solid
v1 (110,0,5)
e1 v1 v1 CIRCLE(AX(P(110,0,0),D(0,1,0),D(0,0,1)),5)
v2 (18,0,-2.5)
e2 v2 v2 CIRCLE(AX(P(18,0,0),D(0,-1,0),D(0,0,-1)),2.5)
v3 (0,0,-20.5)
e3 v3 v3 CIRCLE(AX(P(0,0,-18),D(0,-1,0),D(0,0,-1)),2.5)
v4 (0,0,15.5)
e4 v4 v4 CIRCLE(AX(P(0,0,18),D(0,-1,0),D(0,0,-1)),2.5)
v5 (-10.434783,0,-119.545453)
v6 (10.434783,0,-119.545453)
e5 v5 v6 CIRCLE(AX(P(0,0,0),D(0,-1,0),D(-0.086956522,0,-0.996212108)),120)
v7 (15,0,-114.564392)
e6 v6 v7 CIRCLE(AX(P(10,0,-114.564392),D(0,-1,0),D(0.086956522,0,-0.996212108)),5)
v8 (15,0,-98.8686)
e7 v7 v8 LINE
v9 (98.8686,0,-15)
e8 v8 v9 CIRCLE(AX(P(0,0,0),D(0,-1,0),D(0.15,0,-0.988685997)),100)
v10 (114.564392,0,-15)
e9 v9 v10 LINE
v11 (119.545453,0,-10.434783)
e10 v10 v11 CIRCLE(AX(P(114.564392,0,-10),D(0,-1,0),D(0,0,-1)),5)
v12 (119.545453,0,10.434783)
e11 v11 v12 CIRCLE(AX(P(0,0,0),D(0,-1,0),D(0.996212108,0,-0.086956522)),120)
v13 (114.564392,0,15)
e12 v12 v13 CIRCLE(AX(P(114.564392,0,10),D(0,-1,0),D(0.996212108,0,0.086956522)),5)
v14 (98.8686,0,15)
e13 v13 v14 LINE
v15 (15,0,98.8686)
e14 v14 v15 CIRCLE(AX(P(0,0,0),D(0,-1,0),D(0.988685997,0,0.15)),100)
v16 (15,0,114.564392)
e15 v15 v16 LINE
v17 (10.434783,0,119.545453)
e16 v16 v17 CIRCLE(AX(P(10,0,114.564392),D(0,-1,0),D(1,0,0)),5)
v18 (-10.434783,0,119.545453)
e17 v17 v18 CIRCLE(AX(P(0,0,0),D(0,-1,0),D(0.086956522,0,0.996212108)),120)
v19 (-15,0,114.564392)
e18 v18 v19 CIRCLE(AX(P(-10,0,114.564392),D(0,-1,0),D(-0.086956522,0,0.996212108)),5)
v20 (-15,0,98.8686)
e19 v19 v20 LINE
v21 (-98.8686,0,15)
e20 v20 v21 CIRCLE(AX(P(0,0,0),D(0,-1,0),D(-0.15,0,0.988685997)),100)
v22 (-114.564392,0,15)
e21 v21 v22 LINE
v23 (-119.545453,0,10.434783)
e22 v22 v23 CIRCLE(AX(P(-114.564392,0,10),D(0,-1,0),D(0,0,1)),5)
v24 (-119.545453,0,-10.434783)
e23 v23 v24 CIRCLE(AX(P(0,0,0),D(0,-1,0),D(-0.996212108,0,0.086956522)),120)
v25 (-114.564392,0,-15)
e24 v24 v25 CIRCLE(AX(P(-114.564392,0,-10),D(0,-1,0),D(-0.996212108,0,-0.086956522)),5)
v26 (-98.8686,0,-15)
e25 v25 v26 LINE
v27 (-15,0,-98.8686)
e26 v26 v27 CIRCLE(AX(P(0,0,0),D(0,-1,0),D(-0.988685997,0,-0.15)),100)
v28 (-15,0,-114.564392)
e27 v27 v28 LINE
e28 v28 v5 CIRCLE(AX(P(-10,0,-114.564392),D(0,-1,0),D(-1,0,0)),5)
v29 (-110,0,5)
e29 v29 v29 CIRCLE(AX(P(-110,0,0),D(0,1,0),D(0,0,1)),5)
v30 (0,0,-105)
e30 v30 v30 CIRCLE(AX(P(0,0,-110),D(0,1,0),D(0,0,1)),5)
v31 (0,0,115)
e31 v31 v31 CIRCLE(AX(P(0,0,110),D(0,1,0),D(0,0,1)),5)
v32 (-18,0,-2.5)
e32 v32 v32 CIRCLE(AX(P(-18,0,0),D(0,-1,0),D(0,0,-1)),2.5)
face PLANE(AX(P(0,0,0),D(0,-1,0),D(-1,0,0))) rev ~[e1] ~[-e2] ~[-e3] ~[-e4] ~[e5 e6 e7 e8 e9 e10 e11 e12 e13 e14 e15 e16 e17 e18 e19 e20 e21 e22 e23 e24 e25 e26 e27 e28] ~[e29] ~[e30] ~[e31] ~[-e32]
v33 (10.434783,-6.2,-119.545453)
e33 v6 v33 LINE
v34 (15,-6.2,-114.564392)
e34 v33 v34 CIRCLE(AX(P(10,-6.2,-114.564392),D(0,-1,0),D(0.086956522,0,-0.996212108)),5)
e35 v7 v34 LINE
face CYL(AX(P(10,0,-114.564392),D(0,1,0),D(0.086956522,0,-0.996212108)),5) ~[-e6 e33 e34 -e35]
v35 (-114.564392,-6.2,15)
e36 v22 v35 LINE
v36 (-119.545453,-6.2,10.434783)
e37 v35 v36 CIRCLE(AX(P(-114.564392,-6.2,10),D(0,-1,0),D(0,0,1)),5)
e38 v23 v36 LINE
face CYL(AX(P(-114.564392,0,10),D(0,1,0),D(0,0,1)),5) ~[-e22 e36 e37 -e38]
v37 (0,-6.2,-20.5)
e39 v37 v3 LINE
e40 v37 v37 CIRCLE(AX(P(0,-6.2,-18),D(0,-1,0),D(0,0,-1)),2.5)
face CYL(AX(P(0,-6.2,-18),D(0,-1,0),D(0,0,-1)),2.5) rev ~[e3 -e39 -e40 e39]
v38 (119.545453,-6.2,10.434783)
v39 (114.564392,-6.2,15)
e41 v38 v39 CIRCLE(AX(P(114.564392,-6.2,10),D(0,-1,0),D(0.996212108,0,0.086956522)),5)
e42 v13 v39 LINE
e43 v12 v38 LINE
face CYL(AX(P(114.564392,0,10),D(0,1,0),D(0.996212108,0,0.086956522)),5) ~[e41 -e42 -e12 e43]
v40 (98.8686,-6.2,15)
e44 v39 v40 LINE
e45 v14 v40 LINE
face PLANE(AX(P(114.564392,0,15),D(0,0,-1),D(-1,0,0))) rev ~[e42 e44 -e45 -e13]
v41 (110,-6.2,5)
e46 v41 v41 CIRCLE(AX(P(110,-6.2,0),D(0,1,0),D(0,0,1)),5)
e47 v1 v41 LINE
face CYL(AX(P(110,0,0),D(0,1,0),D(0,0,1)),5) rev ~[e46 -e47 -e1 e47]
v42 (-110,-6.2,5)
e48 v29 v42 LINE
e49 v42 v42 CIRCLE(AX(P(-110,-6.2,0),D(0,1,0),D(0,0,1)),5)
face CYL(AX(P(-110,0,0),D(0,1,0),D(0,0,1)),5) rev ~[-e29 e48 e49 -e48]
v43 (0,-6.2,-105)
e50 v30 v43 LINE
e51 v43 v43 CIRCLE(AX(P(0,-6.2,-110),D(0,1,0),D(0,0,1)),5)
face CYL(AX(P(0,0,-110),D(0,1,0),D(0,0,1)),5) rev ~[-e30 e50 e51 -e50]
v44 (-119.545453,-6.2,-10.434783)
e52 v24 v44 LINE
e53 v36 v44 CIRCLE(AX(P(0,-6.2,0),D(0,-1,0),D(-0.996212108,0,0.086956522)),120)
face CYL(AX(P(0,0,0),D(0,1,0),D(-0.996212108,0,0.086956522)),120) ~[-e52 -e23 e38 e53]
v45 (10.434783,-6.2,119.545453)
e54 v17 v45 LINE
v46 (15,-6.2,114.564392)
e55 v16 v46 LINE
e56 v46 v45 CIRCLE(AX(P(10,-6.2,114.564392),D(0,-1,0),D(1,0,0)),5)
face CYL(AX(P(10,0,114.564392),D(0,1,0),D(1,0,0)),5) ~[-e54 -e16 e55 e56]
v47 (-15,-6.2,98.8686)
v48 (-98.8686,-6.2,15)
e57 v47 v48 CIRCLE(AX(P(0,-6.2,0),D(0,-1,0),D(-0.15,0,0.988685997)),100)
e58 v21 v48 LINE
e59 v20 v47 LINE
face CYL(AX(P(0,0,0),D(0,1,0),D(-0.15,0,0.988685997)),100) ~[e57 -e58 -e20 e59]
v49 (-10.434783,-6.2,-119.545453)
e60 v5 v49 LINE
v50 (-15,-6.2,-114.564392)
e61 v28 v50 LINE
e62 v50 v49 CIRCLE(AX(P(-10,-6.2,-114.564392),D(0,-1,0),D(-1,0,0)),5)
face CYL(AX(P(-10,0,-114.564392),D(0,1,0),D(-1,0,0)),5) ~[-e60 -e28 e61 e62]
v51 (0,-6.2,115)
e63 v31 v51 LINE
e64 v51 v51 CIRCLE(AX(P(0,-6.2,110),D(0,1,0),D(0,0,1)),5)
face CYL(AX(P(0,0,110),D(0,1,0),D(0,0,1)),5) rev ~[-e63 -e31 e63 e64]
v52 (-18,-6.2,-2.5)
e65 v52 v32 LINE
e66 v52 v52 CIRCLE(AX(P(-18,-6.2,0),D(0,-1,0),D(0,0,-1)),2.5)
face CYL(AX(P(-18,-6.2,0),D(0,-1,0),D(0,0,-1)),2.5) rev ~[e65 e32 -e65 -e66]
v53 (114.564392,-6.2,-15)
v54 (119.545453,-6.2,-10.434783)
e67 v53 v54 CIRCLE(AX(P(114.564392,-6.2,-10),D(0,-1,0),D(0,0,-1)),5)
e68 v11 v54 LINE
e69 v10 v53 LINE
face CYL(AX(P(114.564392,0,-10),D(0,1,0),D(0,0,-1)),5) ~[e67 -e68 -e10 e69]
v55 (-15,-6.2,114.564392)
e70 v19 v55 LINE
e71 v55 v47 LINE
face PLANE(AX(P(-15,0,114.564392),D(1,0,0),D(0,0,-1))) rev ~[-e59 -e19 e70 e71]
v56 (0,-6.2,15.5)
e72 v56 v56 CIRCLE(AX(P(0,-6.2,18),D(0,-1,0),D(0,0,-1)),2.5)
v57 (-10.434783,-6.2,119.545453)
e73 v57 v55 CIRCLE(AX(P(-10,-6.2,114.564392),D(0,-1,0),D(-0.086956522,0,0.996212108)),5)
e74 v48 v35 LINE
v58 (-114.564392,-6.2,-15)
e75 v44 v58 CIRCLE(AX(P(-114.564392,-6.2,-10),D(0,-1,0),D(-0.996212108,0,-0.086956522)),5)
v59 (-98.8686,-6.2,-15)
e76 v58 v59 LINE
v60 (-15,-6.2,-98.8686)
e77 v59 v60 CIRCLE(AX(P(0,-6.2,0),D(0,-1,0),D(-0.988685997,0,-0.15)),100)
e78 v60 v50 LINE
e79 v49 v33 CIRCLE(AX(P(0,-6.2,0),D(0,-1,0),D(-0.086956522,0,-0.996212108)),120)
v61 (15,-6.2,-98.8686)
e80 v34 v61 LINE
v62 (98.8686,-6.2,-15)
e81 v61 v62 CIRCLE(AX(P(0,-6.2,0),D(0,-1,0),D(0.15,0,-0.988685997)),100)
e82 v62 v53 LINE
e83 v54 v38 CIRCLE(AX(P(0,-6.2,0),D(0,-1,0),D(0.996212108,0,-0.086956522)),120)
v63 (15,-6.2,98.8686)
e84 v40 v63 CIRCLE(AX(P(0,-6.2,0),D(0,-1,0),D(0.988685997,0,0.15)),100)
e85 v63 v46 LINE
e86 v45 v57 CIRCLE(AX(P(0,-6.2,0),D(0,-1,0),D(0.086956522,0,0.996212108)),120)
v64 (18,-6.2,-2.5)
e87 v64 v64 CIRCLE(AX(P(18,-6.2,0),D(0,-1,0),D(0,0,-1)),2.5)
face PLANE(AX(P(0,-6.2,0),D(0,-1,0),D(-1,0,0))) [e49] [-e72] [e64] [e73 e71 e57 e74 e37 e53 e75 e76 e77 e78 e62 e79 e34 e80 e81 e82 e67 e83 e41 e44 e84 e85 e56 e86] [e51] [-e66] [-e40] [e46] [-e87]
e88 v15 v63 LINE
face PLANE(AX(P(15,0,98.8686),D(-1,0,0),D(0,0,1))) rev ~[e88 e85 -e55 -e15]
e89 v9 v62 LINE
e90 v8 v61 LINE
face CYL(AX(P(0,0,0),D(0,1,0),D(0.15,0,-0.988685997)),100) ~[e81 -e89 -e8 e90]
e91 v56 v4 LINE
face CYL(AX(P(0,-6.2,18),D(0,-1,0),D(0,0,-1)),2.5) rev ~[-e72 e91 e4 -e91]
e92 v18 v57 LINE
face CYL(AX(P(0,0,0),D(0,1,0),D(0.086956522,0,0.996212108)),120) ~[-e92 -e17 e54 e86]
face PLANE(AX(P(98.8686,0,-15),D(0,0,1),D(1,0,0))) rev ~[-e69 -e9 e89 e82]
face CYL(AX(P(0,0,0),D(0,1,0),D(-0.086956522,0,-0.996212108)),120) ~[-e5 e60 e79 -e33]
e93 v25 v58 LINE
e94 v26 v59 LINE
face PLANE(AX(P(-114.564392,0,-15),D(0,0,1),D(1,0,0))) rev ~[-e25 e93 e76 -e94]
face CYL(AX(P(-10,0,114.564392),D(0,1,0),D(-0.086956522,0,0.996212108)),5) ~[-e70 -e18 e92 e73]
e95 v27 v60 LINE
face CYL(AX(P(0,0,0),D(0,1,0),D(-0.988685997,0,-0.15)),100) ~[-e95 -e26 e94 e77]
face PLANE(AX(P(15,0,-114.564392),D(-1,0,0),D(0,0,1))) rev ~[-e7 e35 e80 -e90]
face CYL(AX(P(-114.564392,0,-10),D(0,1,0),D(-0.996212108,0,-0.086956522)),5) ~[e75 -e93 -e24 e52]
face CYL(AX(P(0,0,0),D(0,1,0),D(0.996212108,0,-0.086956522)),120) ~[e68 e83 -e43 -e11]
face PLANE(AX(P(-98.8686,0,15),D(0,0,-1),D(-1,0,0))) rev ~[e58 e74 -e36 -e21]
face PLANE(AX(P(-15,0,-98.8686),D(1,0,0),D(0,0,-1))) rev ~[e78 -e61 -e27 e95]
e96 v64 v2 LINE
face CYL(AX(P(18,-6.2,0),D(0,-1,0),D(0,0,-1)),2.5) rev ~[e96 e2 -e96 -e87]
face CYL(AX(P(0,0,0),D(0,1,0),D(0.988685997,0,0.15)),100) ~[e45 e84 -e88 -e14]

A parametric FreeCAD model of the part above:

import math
import FreeCAD as App
import Part
import Sketcher

V = App.Vector
Q = App.Units.Quantity

doc = App.newDocument("Part")
body = doc.addObject("PartDesign::Body", "Body")

# Sketch on XZ plane
sketch1 = doc.addObject("Sketcher::SketchObject", "Sketch")
body.addObject(sketch1)
sketch1.AttachmentSupport = (doc.XZ_Plane, [""])
sketch1.MapMode = "FlatFace"
sketch1.addGeometry(Part.LineSegment(V(-15, 99, 0), V(-15, 115, 0)), False)
sketch1.addGeometry(Part.ArcOfCircle(Part.Circle(V(-10, 115, 0), V(0, 0, 1), 5), math.radians(95), math.radians(180)), False)
sketch1.addGeometry(Part.ArcOfCircle(Part.Circle(V(0, 0, 0), V(0, 0, 1), 120), math.radians(85.01), math.radians(94.99)), False)
sketch1.addGeometry(Part.ArcOfCircle(Part.Circle(V(10, 115, 0), V(0, 0, 1), 5), math.radians(0), math.radians(85)), False)
sketch1.addGeometry(Part.LineSegment(V(15, 115, 0), V(15, 99, 0)), False)
sketch1.addGeometry(Part.ArcOfCircle(Part.Circle(V(0, 0, 0), V(0, 0, 1), 100), math.radians(9), math.radians(81)), False)
sketch1.addGeometry(Part.LineSegment(V(99, 15, 0), V(115, 15, 0)), False)
sketch1.addGeometry(Part.ArcOfCircle(Part.Circle(V(115, 10, 0), V(0, 0, 1), 5), math.radians(5), math.radians(90)), False)
sketch1.addGeometry(Part.ArcOfCircle(Part.Circle(V(0, 0, 0), V(0, 0, 1), 120), math.radians(-4.99), math.radians(4.99)), False)
sketch1.addGeometry(Part.ArcOfCircle(Part.Circle(V(115, -10, 0), V(0, 0, 1), 5), math.radians(-90), math.radians(-5)), False)
sketch1.addGeometry(Part.LineSegment(V(115, -15, 0), V(99, -15, 0)), False)
sketch1.addGeometry(Part.ArcOfCircle(Part.Circle(V(0, 0, 0), V(0, 0, 1), 100), math.radians(-81), math.radians(-9)), False)
sketch1.addGeometry(Part.LineSegment(V(15, -99, 0), V(15, -115, 0)), False)
sketch1.addGeometry(Part.ArcOfCircle(Part.Circle(V(10, -115, 0), V(0, 0, 1), 5), math.radians(-85), math.radians(0)), False)
sketch1.addGeometry(Part.ArcOfCircle(Part.Circle(V(0, 0, 0), V(0, 0, 1), 120), math.radians(-94.99), math.radians(-85.01)), False)
sketch1.addGeometry(Part.ArcOfCircle(Part.Circle(V(-10, -115, 0), V(0, 0, 1), 5), math.radians(-180), math.radians(-95)), False)
sketch1.addGeometry(Part.LineSegment(V(-15, -115, 0), V(-15, -99, 0)), False)
sketch1.addGeometry(Part.ArcOfCircle(Part.Circle(V(0, 0, 0), V(0, 0, 1), 100), math.radians(-171), math.radians(-99)), False)
sketch1.addGeometry(Part.LineSegment(V(-99, -15, 0), V(-115, -15, 0)), False)
sketch1.addGeometry(Part.ArcOfCircle(Part.Circle(V(-115, -10, 0), V(0, 0, 1), 5), math.radians(-175), math.radians(-90)), False)
sketch1.addGeometry(Part.ArcOfCircle(Part.Circle(V(0, 0, 0), V(0, 0, 1), 120), math.radians(175.01), math.radians(184.99)), False)
sketch1.addGeometry(Part.ArcOfCircle(Part.Circle(V(-115, 10, 0), V(0, 0, 1), 5), math.radians(90), math.radians(175)), False)
sketch1.addGeometry(Part.LineSegment(V(-115, 15, 0), V(-99, 15, 0)), False)
sketch1.addGeometry(Part.ArcOfCircle(Part.Circle(V(0, 0, 0), V(0, 0, 1), 100), math.radians(99), math.radians(171)), False)
sketch1.addGeometry(Part.Circle(V(0, 110, 0), V(0, 0, 1), 5), False)
sketch1.addGeometry(Part.Circle(V(110, 0, 0), V(0, 0, 1), 5), False)
sketch1.addGeometry(Part.Circle(V(-110, 0, 0), V(0, 0, 1), 5), False)
sketch1.addGeometry(Part.Circle(V(0, -110, 0), V(0, 0, 1), 5), False)
sketch1.addConstraint(Sketcher.Constraint("Tangent", 0, 2, 1, 2))
sketch1.addConstraint(Sketcher.Constraint("Tangent", 1, 1, 2, 2))
sketch1.addConstraint(Sketcher.Constraint("Tangent", 2, 1, 3, 2))
sketch1.addConstraint(Sketcher.Constraint("Tangent", 3, 1, 4, 1))
sketch1.addConstraint(Sketcher.Constraint("Coincident", 4, 2, 5, 2))
sketch1.addConstraint(Sketcher.Constraint("Coincident", 5, 1, 6, 1))
sketch1.addConstraint(Sketcher.Constraint("Tangent", 6, 2, 7, 2))
sketch1.addConstraint(Sketcher.Constraint("Tangent", 7, 1, 8, 2))
sketch1.addConstraint(Sketcher.Constraint("Tangent", 8, 1, 9, 2))
sketch1.addConstraint(Sketcher.Constraint("Tangent", 9, 1, 10, 1))
sketch1.addConstraint(Sketcher.Constraint("Coincident", 10, 2, 11, 2))
sketch1.addConstraint(Sketcher.Constraint("Coincident", 11, 1, 12, 1))
sketch1.addConstraint(Sketcher.Constraint("Tangent", 12, 2, 13, 2))
sketch1.addConstraint(Sketcher.Constraint("Tangent", 13, 1, 14, 2))
sketch1.addConstraint(Sketcher.Constraint("Tangent", 14, 1, 15, 2))
sketch1.addConstraint(Sketcher.Constraint("Tangent", 15, 1, 16, 1))
sketch1.addConstraint(Sketcher.Constraint("Coincident", 16, 2, 17, 2))
sketch1.addConstraint(Sketcher.Constraint("Coincident", 17, 1, 18, 1))
sketch1.addConstraint(Sketcher.Constraint("Tangent", 18, 2, 19, 2))
sketch1.addConstraint(Sketcher.Constraint("Tangent", 19, 1, 20, 2))
sketch1.addConstraint(Sketcher.Constraint("Tangent", 20, 1, 21, 2))
sketch1.addConstraint(Sketcher.Constraint("Tangent", 21, 1, 22, 1))
sketch1.addConstraint(Sketcher.Constraint("Coincident", 22, 2, 23, 2))
sketch1.addConstraint(Sketcher.Constraint("Coincident", 23, 1, 0, 1))
sketch1.addConstraint(Sketcher.Constraint("Vertical", 0))
sketch1.addConstraint(Sketcher.Constraint("Vertical", 4))
sketch1.addConstraint(Sketcher.Constraint("Horizontal", 6))
sketch1.addConstraint(Sketcher.Constraint("Horizontal", 10))
sketch1.addConstraint(Sketcher.Constraint("Vertical", 12))
sketch1.addConstraint(Sketcher.Constraint("Vertical", 16))
sketch1.addConstraint(Sketcher.Constraint("Horizontal", 18))
sketch1.addConstraint(Sketcher.Constraint("Horizontal", 22))
sketch1.addConstraint(Sketcher.Constraint("Coincident", 2, 3, -1, 1))
sketch1.addConstraint(Sketcher.Constraint("Coincident", 5, 3, -1, 1))
sketch1.addConstraint(Sketcher.Constraint("Coincident", 8, 3, -1, 1))
sketch1.addConstraint(Sketcher.Constraint("Coincident", 11, 3, -1, 1))
sketch1.addConstraint(Sketcher.Constraint("Coincident", 14, 3, -1, 1))
sketch1.addConstraint(Sketcher.Constraint("Coincident", 17, 3, -1, 1))
sketch1.addConstraint(Sketcher.Constraint("Coincident", 20, 3, -1, 1))
sketch1.addConstraint(Sketcher.Constraint("Coincident", 23, 3, -1, 1))
sketch1.addConstraint(Sketcher.Constraint("Equal", 1, 3))
sketch1.addConstraint(Sketcher.Constraint("Equal", 3, 7))
sketch1.addConstraint(Sketcher.Constraint("Equal", 2, 8))
sketch1.addConstraint(Sketcher.Constraint("Equal", 7, 9))
sketch1.addConstraint(Sketcher.Constraint("Equal", 5, 11))
sketch1.addConstraint(Sketcher.Constraint("Equal", 9, 13))
sketch1.addConstraint(Sketcher.Constraint("Equal", 8, 14))
sketch1.addConstraint(Sketcher.Constraint("Equal", 13, 15))
sketch1.addConstraint(Sketcher.Constraint("Equal", 11, 17))
sketch1.addConstraint(Sketcher.Constraint("Equal", 15, 19))
sketch1.addConstraint(Sketcher.Constraint("Equal", 14, 20))
sketch1.addConstraint(Sketcher.Constraint("Equal", 19, 21))
sketch1.addConstraint(Sketcher.Constraint("Equal", 17, 23))
sketch1.addConstraint(Sketcher.Constraint("Equal", 21, 24))
sketch1.addConstraint(Sketcher.Constraint("Equal", 24, 25))
sketch1.addConstraint(Sketcher.Constraint("Equal", 25, 26))
sketch1.addConstraint(Sketcher.Constraint("Equal", 26, 27))
sketch1.addConstraint(Sketcher.Constraint("Symmetric", 25, 3, 26, 3, -1, 1))
sketch1.addConstraint(Sketcher.Constraint("Symmetric", 24, 3, 27, 3, -1, 1))
sketch1.addConstraint(Sketcher.Constraint("PointOnObject", 24, 3, -2))
sketch1.addConstraint(Sketcher.Constraint("PointOnObject", 25, 3, -1))
sketch1.addConstraint(Sketcher.Constraint("Horizontal", 1, 3, 3, 3))
sketch1.addConstraint(Sketcher.Constraint("Horizontal", 13, 3, 15, 3))
sketch1.addConstraint(Sketcher.Constraint("Horizontal", 9, 3, 19, 3))
sketch1.addConstraint(Sketcher.Constraint("Horizontal", 7, 3, 21, 3))
sketch1.addConstraint(Sketcher.Constraint("Vertical", 7, 3, 9, 3))
sketch1.addConstraint(Sketcher.Constraint("Vertical", 3, 3, 13, 3))
sketch1.addConstraint(Sketcher.Constraint("Equal", 22, 0))
sketch1.addConstraint(Sketcher.Constraint("Diameter", 24, Q("10 mm")))
sketch1.addConstraint(Sketcher.Constraint("Radius", 2, Q("120 mm")))
sketch1.addConstraint(Sketcher.Constraint("Radius", 5, Q("100 mm")))
sketch1.addConstraint(Sketcher.Constraint("DistanceX", 1, 3, -1, 1, Q("10 mm")))
sketch1.addConstraint(Sketcher.Constraint("DistanceY", -1, 1, 24, 3, Q("110 mm")))
sketch1.addConstraint(Sketcher.Constraint("DistanceX", -1, 1, 25, 3, Q("110 mm")))
pad1 = doc.addObject("PartDesign::Pad", "Pad")
body.addObject(pad1)
pad1.Profile = sketch1
pad1.Length = 6.2

# Sketch on XZ plane
sketch2 = doc.addObject("Sketcher::SketchObject", "Sketch001")
body.addObject(sketch2)
sketch2.AttachmentSupport = (doc.XZ_Plane, [""])
sketch2.MapMode = "FlatFace"
sketch2.AttachmentOffset = App.Placement(V(0, 0, 6.2), App.Rotation())
sketch2.addGeometry(Part.Circle(V(18, 0, 0), V(0, 0, 1), 2.5), False)
sketch2.addConstraint(Sketcher.Constraint("PointOnObject", 0, 3, -1))
sketch2.addConstraint(Sketcher.Constraint("Diameter", 0, Q("5 mm")))
sketch2.addConstraint(Sketcher.Constraint("DistanceX", -1, 1, 0, 3, Q("18 mm")))
pocket1 = doc.addObject("PartDesign::Pocket", "Pocket")
body.addObject(pocket1)
pocket1.Profile = sketch2
pocket1.Type = "UpToFirst"

# Sketch on XZ plane
sketch3 = doc.addObject("Sketcher::SketchObject", "Sketch002")
body.addObject(sketch3)
sketch3.AttachmentSupport = (doc.XZ_Plane, [""])
sketch3.MapMode = "FlatFace"
sketch3.AttachmentOffset = App.Placement(V(0, 0, 6.2), App.Rotation())
sketch3.addGeometry(Part.Circle(V(0, -18, 0), V(0, 0, 1), 2.5), False)
sketch3.addConstraint(Sketcher.Constraint("PointOnObject", 0, 3, -2))
sketch3.addConstraint(Sketcher.Constraint("Diameter", 0, Q("5 mm")))
sketch3.addConstraint(Sketcher.Constraint("DistanceY", 0, 3, -1, 1, Q("18 mm")))
pocket2 = doc.addObject("PartDesign::Pocket", "Pocket001")
body.addObject(pocket2)
pocket2.Profile = sketch3
pocket2.Type = "UpToFirst"

# Sketch on XZ plane
sketch4 = doc.addObject("Sketcher::SketchObject", "Sketch003")
body.addObject(sketch4)
sketch4.AttachmentSupport = (doc.XZ_Plane, [""])
sketch4.MapMode = "FlatFace"
sketch4.AttachmentOffset = App.Placement(V(0, 0, 6.2), App.Rotation())
sketch4.addGeometry(Part.Circle(V(-18, 0, 0), V(0, 0, 1), 2.5), False)
sketch4.addConstraint(Sketcher.Constraint("PointOnObject", 0, 3, -1))
sketch4.addConstraint(Sketcher.Constraint("Diameter", 0, Q("5 mm")))
sketch4.addConstraint(Sketcher.Constraint("DistanceX", 0, 3, -1, 1, Q("18 mm")))
pocket3 = doc.addObject("PartDesign::Pocket", "Pocket002")
body.addObject(pocket3)
pocket3.Profile = sketch4
pocket3.Type = "UpToFirst"

# Sketch on XZ plane
sketch5 = doc.addObject("Sketcher::SketchObject", "Sketch004")
body.addObject(sketch5)
sketch5.AttachmentSupport = (doc.XZ_Plane, [""])
sketch5.MapMode = "FlatFace"
sketch5.AttachmentOffset = App.Placement(V(0, 0, 6.2), App.Rotation())
sketch5.addGeometry(Part.Circle(V(0, 18, 0), V(0, 0, 1), 2.5), False)
sketch5.addConstraint(Sketcher.Constraint("PointOnObject", 0, 3, -2))
sketch5.addConstraint(Sketcher.Constraint("Diameter", 0, Q("5 mm")))
sketch5.addConstraint(Sketcher.Constraint("DistanceY", -1, 1, 0, 3, Q("18 mm")))
pocket4 = doc.addObject("PartDesign::Pocket", "Pocket003")
body.addObject(pocket4)
pocket4.Profile = sketch5
pocket4.Type = "UpToFirst"

doc.recompute()
